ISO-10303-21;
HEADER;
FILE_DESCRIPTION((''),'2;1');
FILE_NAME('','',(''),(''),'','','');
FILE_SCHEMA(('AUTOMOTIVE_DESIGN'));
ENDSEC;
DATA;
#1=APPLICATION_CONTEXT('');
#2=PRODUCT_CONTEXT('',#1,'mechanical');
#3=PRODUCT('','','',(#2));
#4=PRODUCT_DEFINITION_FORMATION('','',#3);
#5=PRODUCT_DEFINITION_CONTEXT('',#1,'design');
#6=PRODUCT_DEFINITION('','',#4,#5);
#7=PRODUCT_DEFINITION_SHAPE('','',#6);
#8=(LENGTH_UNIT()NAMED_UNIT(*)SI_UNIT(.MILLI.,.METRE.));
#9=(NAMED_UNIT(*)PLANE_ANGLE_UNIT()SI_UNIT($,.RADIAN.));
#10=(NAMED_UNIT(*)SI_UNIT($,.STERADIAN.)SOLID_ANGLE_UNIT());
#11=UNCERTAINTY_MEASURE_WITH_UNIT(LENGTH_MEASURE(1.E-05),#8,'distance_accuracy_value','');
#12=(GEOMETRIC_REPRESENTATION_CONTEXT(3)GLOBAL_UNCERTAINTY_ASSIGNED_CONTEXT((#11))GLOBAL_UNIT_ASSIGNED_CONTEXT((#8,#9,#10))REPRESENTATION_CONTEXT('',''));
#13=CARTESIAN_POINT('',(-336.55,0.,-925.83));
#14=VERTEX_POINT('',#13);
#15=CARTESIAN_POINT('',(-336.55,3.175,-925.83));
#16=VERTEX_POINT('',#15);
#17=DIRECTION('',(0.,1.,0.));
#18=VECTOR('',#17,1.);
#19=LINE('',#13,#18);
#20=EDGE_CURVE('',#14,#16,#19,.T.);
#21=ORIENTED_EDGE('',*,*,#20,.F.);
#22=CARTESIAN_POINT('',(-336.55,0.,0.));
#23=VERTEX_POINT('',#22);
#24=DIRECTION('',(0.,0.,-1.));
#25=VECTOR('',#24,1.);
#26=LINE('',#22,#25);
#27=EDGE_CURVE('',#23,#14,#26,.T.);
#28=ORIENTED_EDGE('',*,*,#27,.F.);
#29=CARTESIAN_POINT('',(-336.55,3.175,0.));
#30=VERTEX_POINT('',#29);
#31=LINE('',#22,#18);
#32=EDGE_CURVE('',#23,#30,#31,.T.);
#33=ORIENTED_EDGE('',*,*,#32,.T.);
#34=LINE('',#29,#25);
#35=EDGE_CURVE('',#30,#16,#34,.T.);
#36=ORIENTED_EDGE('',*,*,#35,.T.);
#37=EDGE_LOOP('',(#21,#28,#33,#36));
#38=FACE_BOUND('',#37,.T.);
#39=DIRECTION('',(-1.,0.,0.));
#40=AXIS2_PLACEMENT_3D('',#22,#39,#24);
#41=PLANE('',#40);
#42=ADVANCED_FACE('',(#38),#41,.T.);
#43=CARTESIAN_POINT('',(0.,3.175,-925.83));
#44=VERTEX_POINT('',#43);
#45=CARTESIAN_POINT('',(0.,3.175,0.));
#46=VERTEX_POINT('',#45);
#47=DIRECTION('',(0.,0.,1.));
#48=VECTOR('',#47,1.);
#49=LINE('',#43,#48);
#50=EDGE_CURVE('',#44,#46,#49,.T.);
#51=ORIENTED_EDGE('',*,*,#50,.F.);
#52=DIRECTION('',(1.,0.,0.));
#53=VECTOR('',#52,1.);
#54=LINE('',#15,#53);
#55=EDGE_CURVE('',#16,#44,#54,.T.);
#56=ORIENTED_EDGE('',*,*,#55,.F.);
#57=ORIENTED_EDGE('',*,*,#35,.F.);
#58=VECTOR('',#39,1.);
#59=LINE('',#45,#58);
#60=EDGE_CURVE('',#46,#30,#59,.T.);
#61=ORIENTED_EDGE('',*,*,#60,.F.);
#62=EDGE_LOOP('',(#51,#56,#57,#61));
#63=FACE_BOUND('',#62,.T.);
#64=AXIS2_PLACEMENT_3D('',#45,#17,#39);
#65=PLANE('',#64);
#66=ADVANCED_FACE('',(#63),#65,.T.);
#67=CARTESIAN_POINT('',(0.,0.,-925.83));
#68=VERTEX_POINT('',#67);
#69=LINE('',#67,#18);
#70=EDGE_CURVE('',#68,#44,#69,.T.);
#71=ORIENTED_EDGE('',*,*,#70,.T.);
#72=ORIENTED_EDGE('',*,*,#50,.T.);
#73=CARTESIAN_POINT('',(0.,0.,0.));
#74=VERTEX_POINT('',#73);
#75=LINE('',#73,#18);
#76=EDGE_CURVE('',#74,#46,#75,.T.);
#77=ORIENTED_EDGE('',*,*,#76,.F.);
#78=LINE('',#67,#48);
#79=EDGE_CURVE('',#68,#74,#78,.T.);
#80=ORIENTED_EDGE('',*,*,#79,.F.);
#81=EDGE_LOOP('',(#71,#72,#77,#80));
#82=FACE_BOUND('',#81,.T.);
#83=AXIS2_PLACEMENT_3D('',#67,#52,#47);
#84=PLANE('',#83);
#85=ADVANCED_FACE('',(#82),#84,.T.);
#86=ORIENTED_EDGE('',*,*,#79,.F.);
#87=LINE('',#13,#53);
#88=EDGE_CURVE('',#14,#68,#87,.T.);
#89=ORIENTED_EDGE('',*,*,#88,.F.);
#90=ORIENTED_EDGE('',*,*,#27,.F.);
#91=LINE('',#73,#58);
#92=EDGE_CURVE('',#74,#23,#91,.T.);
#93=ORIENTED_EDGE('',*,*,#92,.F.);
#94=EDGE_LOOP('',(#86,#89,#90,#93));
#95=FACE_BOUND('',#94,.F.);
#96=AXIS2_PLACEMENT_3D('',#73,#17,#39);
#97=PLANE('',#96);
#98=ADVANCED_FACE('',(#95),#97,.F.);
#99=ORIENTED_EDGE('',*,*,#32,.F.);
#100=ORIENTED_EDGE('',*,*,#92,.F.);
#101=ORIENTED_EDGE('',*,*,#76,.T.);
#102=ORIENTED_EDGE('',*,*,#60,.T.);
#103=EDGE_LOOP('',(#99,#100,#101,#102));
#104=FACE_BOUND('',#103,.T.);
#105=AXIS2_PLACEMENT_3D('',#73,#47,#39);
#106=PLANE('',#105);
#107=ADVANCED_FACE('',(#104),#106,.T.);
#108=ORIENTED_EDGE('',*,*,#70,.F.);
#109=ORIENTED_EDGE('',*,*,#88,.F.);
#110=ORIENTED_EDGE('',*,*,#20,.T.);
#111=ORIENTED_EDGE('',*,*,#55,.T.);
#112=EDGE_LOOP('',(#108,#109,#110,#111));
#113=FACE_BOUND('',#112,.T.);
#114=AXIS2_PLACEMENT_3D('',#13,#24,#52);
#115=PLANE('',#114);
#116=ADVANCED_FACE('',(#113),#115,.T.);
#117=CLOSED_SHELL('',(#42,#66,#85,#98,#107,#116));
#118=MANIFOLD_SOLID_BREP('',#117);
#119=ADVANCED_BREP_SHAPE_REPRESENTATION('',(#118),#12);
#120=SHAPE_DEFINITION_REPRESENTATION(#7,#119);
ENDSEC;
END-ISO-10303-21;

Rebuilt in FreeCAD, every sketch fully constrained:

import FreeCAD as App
import Part
import Sketcher

V = App.Vector
Q = App.Units.Quantity

doc = App.newDocument("Part")
params = doc.addObject("Spreadsheet::Sheet", "Params")
for row, (alias, value) in enumerate([
    ("sketch1_width", "13.25 in"),
    ("sketch1_height", "36.45 in"),
    ("pad1_length", "0.125 in"),
], start=1):
    params.set(f"A{row}", alias)
    params.set(f"B{row}", "=" + value)
    params.setAlias(f"B{row}", alias)

body = doc.addObject("PartDesign::Body", "Body")

sketch1 = body.newObject("Sketcher::SketchObject", "Sketch")
sketch1.AttachmentSupport = (doc.getObject("XZ_Plane"), [""])
sketch1.MapMode = "FlatFace"
sketch1.addGeometry([
    Part.LineSegment(V(-337, 0, 0), V(0, 0, 0)),
    Part.LineSegment(V(0, 0, 0), V(0, -926, 0)),
    Part.LineSegment(V(0, -926, 0), V(-337, -926, 0)),
    Part.LineSegment(V(-337, -926, 0), V(-337, 0, 0)),
], False)
sketch1.addConstraint([
    Sketcher.Constraint("Coincident", 0, 2, 1, 1),
    Sketcher.Constraint("Coincident", 1, 2, 2, 1),
    Sketcher.Constraint("Coincident", 2, 2, 3, 1),
    Sketcher.Constraint("Coincident", 3, 2, 0, 1),
    Sketcher.Constraint("Horizontal", 0),
    Sketcher.Constraint("Vertical", 1),
    Sketcher.Constraint("Horizontal", 2),
    Sketcher.Constraint("Vertical", 3),
    Sketcher.Constraint("Coincident", 0, 2, -1, 1),
    Sketcher.Constraint("DistanceX", 0, 1, 0, 2, Q("13.25 in")),
    Sketcher.Constraint("DistanceY", 1, 2, 1, 1, Q("36.45 in")),
])
sketch1.setExpression("Constraints[9]", "Params.sketch1_width")
sketch1.setExpression("Constraints[10]", "Params.sketch1_height")
pad1 = body.newObject("PartDesign::Pad", "Pad")
pad1.Profile = sketch1
pad1.setExpression("Length", "Params.pad1_length")
pad1.Reversed = True

doc.recompute()
